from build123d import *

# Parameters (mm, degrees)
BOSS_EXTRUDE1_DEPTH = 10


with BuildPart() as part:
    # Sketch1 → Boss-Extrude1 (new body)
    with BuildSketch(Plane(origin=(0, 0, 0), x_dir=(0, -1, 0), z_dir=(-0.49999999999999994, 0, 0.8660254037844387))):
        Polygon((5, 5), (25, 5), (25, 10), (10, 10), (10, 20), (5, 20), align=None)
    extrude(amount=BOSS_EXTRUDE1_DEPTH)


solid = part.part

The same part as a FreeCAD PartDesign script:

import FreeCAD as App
import Part
import Sketcher
from FreeCAD import Vector
Q = App.Units.Quantity

doc = App.newDocument("Part")
body = doc.addObject("PartDesign::Body", "Body")

# Sketch on an angled plane
sketch1 = body.newObject("Sketcher::SketchObject", "Sketch")
sketch1.Placement = App.Placement(Vector(0, 0, 0), App.Rotation(Vector(0, -1, 0), Vector(0.866025404, 0, 0.5), Vector(-0.5, 0, 0.866025404), "ZXY"))
sketch1.addGeometry(Part.LineSegment(Vector(5, 5, 0), Vector(25, 5, 0)), False)
sketch1.addGeometry(Part.LineSegment(Vector(25, 5, 0), Vector(25, 10, 0)), False)
sketch1.addGeometry(Part.LineSegment(Vector(25, 10, 0), Vector(10, 10, 0)), False)
sketch1.addGeometry(Part.LineSegment(Vector(10, 10, 0), Vector(10, 20, 0)), False)
sketch1.addGeometry(Part.LineSegment(Vector(10, 20, 0), Vector(5, 20, 0)), False)
sketch1.addGeometry(Part.LineSegment(Vector(5, 20, 0), Vector(5, 5, 0)), False)
sketch1.addConstraint(Sketcher.Constraint("Coincident", 0, 2, 1, 1))
sketch1.addConstraint(Sketcher.Constraint("Coincident", 1, 2, 2, 1))
sketch1.addConstraint(Sketcher.Constraint("Coincident", 2, 2, 3, 1))
sketch1.addConstraint(Sketcher.Constraint("Coincident", 3, 2, 4, 1))
sketch1.addConstraint(Sketcher.Constraint("Coincident", 4, 2, 5, 1))
sketch1.addConstraint(Sketcher.Constraint("Coincident", 5, 2, 0, 1))
sketch1.addConstraint(Sketcher.Constraint("Horizontal", 0))
sketch1.addConstraint(Sketcher.Constraint("Vertical", 1))
sketch1.addConstraint(Sketcher.Constraint("Horizontal", 2))
sketch1.addConstraint(Sketcher.Constraint("Vertical", 3))
sketch1.addConstraint(Sketcher.Constraint("Horizontal", 4))
sketch1.addConstraint(Sketcher.Constraint("Vertical", 5))
sketch1.addConstraint(Sketcher.Constraint("Equal", 4, 1))
sketch1.addConstraint(Sketcher.Constraint("Equal", 2, 5))
sketch1.addConstraint(Sketcher.Constraint("DistanceX", 0, 1, 0, 2, Q("20 mm")))
sketch1.addConstraint(Sketcher.Constraint("DistanceX", 2, 2, 2, 1, Q("15 mm")))
sketch1.addConstraint(Sketcher.Constraint("DistanceX", -1, 1, 0, 2, Q("25 mm")))
sketch1.addConstraint(Sketcher.Constraint("DistanceY", -1, 1, 0, 2, Q("5 mm")))
pad1 = body.newObject("PartDesign::Pad", "Pad")
pad1.Profile = sketch1
pad1.Length = 10

doc.recompute()
